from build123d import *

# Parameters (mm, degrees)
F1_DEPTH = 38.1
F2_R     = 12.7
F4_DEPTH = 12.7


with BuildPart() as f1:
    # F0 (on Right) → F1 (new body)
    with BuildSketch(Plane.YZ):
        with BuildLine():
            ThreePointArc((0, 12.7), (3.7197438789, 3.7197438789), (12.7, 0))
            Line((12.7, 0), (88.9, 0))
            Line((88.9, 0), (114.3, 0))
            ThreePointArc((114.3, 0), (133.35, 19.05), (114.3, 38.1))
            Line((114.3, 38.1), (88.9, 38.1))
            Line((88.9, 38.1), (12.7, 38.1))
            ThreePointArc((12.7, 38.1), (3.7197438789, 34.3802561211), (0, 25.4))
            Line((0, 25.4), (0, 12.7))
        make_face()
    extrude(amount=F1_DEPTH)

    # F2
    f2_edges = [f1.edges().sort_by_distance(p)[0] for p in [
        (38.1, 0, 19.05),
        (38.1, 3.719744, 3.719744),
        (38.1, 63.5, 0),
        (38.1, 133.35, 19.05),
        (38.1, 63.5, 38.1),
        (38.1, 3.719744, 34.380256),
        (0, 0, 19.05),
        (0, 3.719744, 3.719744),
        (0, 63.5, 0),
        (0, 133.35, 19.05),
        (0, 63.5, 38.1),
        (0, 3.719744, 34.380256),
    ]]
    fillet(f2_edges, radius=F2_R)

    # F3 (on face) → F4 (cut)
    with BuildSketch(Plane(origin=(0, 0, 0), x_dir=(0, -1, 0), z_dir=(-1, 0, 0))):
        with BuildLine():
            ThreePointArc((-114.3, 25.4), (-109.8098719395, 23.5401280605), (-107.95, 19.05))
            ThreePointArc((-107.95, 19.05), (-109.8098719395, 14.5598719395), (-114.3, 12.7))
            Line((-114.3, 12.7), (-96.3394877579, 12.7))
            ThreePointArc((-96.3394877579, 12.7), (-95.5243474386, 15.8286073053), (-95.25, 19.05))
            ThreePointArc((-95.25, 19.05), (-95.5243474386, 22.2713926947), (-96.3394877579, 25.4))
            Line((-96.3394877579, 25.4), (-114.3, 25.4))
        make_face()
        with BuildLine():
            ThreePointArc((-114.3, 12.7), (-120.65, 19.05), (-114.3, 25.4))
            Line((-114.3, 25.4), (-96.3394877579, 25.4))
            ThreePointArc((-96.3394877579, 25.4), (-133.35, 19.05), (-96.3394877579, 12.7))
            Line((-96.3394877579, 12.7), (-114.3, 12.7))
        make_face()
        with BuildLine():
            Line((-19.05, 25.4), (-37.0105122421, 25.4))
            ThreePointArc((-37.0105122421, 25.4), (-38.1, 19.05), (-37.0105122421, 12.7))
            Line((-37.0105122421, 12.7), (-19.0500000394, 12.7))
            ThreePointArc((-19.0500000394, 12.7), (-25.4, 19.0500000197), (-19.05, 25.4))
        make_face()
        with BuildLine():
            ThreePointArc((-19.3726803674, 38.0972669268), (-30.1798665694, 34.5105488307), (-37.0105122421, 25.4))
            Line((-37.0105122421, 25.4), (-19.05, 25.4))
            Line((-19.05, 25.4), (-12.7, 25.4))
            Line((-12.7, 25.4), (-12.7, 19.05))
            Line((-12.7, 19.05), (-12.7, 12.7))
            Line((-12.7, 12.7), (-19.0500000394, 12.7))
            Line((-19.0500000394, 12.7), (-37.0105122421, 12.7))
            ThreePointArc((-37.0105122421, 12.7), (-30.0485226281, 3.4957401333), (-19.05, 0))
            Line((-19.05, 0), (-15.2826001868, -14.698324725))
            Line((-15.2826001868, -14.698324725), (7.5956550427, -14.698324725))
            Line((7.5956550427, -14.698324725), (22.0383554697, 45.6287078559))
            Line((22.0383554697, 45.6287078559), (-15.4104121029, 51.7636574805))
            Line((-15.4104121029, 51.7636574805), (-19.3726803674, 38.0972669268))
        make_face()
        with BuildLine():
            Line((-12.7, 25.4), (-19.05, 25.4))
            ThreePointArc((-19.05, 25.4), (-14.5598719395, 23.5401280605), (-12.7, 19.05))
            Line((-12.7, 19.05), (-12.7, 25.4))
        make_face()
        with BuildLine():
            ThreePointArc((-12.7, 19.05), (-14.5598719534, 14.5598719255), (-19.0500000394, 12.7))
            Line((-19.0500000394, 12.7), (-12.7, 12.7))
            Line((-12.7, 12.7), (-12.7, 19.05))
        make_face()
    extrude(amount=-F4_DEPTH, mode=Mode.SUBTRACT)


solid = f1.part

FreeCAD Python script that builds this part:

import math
import FreeCAD as App
import Part
import Sketcher
Q = App.Units.Quantity


def edges_at(feature, points):
    """Names of the edges that pass closest to the given points."""
    edges = feature.Shape.Edges
    near = lambda p: min(range(len(edges)), key=lambda i: edges[i].distToShape(Part.Vertex(*p))[0])
    return sorted({f"Edge{near(p) + 1}" for p in points})

doc = App.newDocument("Part")
body = doc.addObject("PartDesign::Body", "Body")

# Sketch on YZ plane
sketch1 = body.newObject("Sketcher::SketchObject", "Sketch")
sketch1.AttachmentSupport = (doc.getObject("YZ_Plane"), [""])
sketch1.MapMode = "FlatFace"
sketch1.addGeometry([
    Part.ArcOfCircle(Part.Circle(App.Vector(13, 13, 0), App.Vector(0, 0, 1), 13), math.radians(180), math.radians(270)),  # 0
    Part.LineSegment(App.Vector(13, 0, 0), App.Vector(114, 0, 0)),  # 1
    Part.ArcOfCircle(Part.Circle(App.Vector(114, 19, 0), App.Vector(0, 0, 1), 19), math.radians(-90), math.radians(90)),  # 2
    Part.LineSegment(App.Vector(114, 38, 0), App.Vector(13, 38, 0)),  # 3
    Part.ArcOfCircle(Part.Circle(App.Vector(13, 25, 0), App.Vector(0, 0, 1), 13), math.radians(90), math.radians(180)),  # 4
    Part.LineSegment(App.Vector(0, 25, 0), App.Vector(0, 13, 0)),  # 5
], False)
sketch1.addConstraint([
    Sketcher.Constraint("Tangent", 0, 2, 1, 1),
    Sketcher.Constraint("Tangent", 1, 2, 2, 1),
    Sketcher.Constraint("Tangent", 2, 2, 3, 1),
    Sketcher.Constraint("Tangent", 3, 2, 4, 1),
    Sketcher.Constraint("Tangent", 4, 2, 5, 1),
    Sketcher.Constraint("Tangent", 5, 2, 0, 1),
    Sketcher.Constraint("Horizontal", 1),
    Sketcher.Constraint("Horizontal", 3),
    Sketcher.Constraint("Vertical", 5),
    Sketcher.Constraint("Equal", 0, 4),
    Sketcher.Constraint("PointOnObject", 0, 2, -1),
    Sketcher.Constraint("PointOnObject", 4, 2, -2),
    Sketcher.Constraint("Radius", 0, Q("0.5 in")),
    Sketcher.Constraint("DistanceX", 1, 1, 1, 2, Q("4 in")),
    Sketcher.Constraint("Radius", 2, Q("0.75 in")),
])
pad1 = body.newObject("PartDesign::Pad", "Pad")
pad1.Profile = sketch1
pad1.Length = Q("1.5 in")
doc.recompute()

fillet = body.newObject("PartDesign::Fillet", "Fillet")
fillet.Base = (pad1, edges_at(pad1, [
    (38.1, 0, 19.05),
    (38.1, 3.72, 3.72),
    (38.1, 63.5, 0),
    (38.1, 133.35, 19.05),
    (38.1, 63.5, 38.1),
    (38.1, 3.72, 34.38),
    (0, 0, 19.05),
    (0, 3.72, 3.72),
    (0, 63.5, 0),
    (0, 133.35, 19.05),
    (0, 63.5, 38.1),
    (0, 3.72, 34.38),
]))
fillet.Radius = Q("0.5 in")

# Sketch on YZ plane
sketch2 = body.newObject("Sketcher::SketchObject", "Sketch001")
sketch2.AttachmentSupport = (doc.getObject("YZ_Plane"), [""])
sketch2.MapMode = "FlatFace"
sketch2.addGeometry([
    Part.ArcOfCircle(Part.Circle(App.Vector(114, 19, 0), App.Vector(0, 0, 1), 19), math.radians(180), math.radians(199.47)),  # 0
    Part.ArcOfCircle(Part.Circle(App.Vector(114, 19, 0), App.Vector(0, 0, 1), 19), math.radians(160.53), math.radians(180)),  # 1
    Part.ArcOfCircle(Part.Circle(App.Vector(114, 19, 0), App.Vector(0, 0, 1), 19), math.radians(-161), math.radians(161)),  # 2
    Part.ArcOfCircle(Part.Circle(App.Vector(114, 19, 0), App.Vector(0, 0, 1), 6), math.radians(90), math.radians(180)),  # 3
    Part.ArcOfCircle(Part.Circle(App.Vector(114, 19, 0), App.Vector(0, 0, 1), 6), math.radians(180), math.radians(270)),  # 4
    Part.ArcOfCircle(Part.Circle(App.Vector(114, 19, 0), App.Vector(0, 0, 1), 6), math.radians(-90), math.radians(90)),  # 5
    Part.ArcOfCircle(Part.Circle(App.Vector(19, 19, 0), App.Vector(0, 0, 1), 19), math.radians(-19), math.radians(19)),  # 6
    Part.ArcOfCircle(Part.Circle(App.Vector(19, 19, 0), App.Vector(0, 0, 1), 19), math.radians(-90), math.radians(-19)),  # 7
    Part.LineSegment(App.Vector(19, 0, 0), App.Vector(15, -15, 0)),  # 8
    Part.LineSegment(App.Vector(15, -15, 0), App.Vector(-8, -15, 0)),  # 9
    Part.LineSegment(App.Vector(-8, -15, 0), App.Vector(-22, 46, 0)),  # 10
    Part.LineSegment(App.Vector(-22, 46, 0), App.Vector(15, 52, 0)),  # 11
    Part.LineSegment(App.Vector(15, 52, 0), App.Vector(19, 38, 0)),  # 12
    Part.ArcOfCircle(Part.Circle(App.Vector(19, 19, 0), App.Vector(0, 0, 1), 19), math.radians(19), math.radians(89)),  # 13
    Part.ArcOfCircle(Part.Circle(App.Vector(19, 19, 0), App.Vector(0, 0, 1), 6), math.radians(-90), math.radians(90)),  # 14
    Part.ArcOfCircle(Part.Circle(App.Vector(19, 19, 0), App.Vector(0, 0, 1), 6), math.radians(90), math.radians(180)),  # 15
    Part.ArcOfCircle(Part.Circle(App.Vector(19, 19, 0), App.Vector(0, 0, 1), 6), math.radians(180), math.radians(270)),  # 16
], False)
sketch2.addConstraint([
    Sketcher.Constraint("Tangent", 0, 1, 1, 2),
    Sketcher.Constraint("Tangent", 1, 1, 2, 2),
    Sketcher.Constraint("Tangent", 2, 1, 0, 2),
    Sketcher.Constraint("Tangent", 3, 2, 4, 1),
    Sketcher.Constraint("Tangent", 4, 2, 5, 1),
    Sketcher.Constraint("Tangent", 5, 2, 3, 1),
    Sketcher.Constraint("Tangent", 6, 1, 7, 2),
    Sketcher.Constraint("Coincident", 7, 1, 8, 1),
    Sketcher.Constraint("Coincident", 8, 2, 9, 1),
    Sketcher.Constraint("Coincident", 9, 2, 10, 1),
    Sketcher.Constraint("Coincident", 10, 2, 11, 1),
    Sketcher.Constraint("Coincident", 11, 2, 12, 1),
    Sketcher.Constraint("Coincident", 12, 2, 13, 2),
    Sketcher.Constraint("Tangent", 13, 1, 6, 2),
    Sketcher.Constraint("Tangent", 14, 2, 15, 1),
    Sketcher.Constraint("Tangent", 15, 2, 16, 1),
    Sketcher.Constraint("Tangent", 16, 2, 14, 1),
    Sketcher.Constraint("Horizontal", 9),
    Sketcher.Constraint("Coincident", 3, 3, 0, 3),
    Sketcher.Constraint("Coincident", 14, 3, 6, 3),
    Sketcher.Constraint("Equal", 2, 6),
    Sketcher.Constraint("Equal", 6, 7),
    Sketcher.Constraint("Equal", 7, 13),
    Sketcher.Constraint("Equal", 5, 14),
    Sketcher.Constraint("PointOnObject", 7, 1, -1),
    Sketcher.Constraint("Horizontal", 5, 3, 6, 3),
    Sketcher.Constraint("Horizontal", 16, 3, 0, 1),
    Sketcher.Constraint("Horizontal", 0, 1, 3, 2),
    Sketcher.Constraint("Horizontal", 2, 1, 4, 2),
    Sketcher.Constraint("Horizontal", 1, 1, 5, 2),
    Sketcher.Constraint("Horizontal", 4, 2, 6, 1),
    Sketcher.Constraint("Horizontal", 5, 2, 13, 1),
    Sketcher.Constraint("Horizontal", 3, 2, 15, 2),
    Sketcher.Constraint("Vertical", 5, 3, 4, 2),
    Sketcher.Constraint("Vertical", 4, 2, 5, 2),
    Sketcher.Constraint("Vertical", 16, 3, 7, 1),
    Sketcher.Constraint("Vertical", 7, 1, 14, 2),
    Sketcher.Constraint("Vertical", 14, 2, 16, 2),
    Sketcher.Constraint("Radius", 0, Q("0.75 in")),
    Sketcher.Constraint("Radius", 3, Q("0.25 in")),
    Sketcher.Constraint("DistanceX", -1, 1, 0, 3, Q("4.5 in")),
    Sketcher.Constraint("DistanceX", -1, 1, 15, 2, Q("0.5 in")),
    Sketcher.Constraint("DistanceX", -1, 1, 8, 2, Q("15.2826 mm")),
    Sketcher.Constraint("Distance", 11, Q("37.947962 mm")),
    Sketcher.Constraint("Distance", 12, Q("14.229188 mm")),
    Sketcher.Constraint("DistanceX", 9, 2, 9, 1, Q("22.878255 mm")),
    Sketcher.Constraint("DistanceX", -1, 1, 12, 2, Q("19.37268 mm")),
    Sketcher.Constraint("DistanceX", 11, 2, 12, 2, Q("3.962268 mm")),
    Sketcher.Constraint("Distance", 8, Q("15.173465 mm")),
    Sketcher.Constraint("Distance", 10, Q("62.031786 mm")),
])
pocket1 = body.newObject("PartDesign::Pocket", "Pocket")
pocket1.Profile = sketch2
pocket1.Length = Q("0.5 in")
pocket1.Reversed = True

doc.recompute()
